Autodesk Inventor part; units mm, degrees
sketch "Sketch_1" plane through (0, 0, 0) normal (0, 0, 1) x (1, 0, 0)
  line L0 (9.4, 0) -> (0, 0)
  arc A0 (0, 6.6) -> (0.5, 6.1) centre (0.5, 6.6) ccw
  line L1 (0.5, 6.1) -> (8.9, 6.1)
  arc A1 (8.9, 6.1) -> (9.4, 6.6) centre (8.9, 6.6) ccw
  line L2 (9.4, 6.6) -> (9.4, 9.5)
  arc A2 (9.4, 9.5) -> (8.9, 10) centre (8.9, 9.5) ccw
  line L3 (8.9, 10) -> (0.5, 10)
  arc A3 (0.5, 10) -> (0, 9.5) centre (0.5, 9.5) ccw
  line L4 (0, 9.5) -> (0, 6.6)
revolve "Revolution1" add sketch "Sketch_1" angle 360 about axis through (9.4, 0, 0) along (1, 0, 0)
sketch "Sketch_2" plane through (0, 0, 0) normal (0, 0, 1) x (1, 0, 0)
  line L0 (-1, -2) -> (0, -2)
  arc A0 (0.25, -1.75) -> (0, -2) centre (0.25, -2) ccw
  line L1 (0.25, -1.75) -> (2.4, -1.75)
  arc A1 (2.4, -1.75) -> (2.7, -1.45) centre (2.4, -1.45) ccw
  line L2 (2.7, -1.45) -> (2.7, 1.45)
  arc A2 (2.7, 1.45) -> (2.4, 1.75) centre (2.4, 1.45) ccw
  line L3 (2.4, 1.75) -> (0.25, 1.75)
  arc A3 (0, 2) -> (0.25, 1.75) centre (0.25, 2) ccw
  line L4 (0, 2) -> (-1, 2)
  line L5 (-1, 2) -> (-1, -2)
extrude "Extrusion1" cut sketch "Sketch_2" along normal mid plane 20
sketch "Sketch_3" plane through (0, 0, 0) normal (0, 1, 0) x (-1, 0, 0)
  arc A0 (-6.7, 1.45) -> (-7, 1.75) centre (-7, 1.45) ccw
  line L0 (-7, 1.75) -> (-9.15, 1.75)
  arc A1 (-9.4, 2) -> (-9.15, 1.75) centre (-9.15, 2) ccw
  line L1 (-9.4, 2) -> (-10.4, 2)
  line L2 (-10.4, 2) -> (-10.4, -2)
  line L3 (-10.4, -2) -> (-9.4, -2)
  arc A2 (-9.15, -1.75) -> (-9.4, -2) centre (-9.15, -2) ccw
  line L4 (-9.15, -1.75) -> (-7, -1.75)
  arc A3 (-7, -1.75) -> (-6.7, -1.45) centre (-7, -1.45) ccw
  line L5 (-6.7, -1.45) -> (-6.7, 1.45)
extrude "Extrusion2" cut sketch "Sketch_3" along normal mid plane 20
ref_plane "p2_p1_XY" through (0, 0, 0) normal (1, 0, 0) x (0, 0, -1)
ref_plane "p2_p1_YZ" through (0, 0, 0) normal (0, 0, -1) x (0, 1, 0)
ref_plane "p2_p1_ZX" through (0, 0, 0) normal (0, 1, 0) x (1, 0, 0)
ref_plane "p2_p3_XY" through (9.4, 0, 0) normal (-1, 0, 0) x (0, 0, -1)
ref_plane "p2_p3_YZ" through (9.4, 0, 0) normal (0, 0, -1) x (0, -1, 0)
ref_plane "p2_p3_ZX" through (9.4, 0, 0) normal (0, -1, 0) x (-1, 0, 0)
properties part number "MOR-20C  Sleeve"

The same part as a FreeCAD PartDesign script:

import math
import FreeCAD as App
import Part
import Sketcher

doc = App.newDocument("Part")
body = doc.addObject("PartDesign::Body", "Body")

# Sketch on XY plane
sketch1 = body.newObject("Sketcher::SketchObject", "Sketch")
sketch1.AttachmentSupport = (doc.getObject("XY_Plane"), [""])
sketch1.MapMode = "FlatFace"
sketch1.addGeometry([
    Part.LineSegment(App.Vector(0, 9.5, 0), App.Vector(0, 6.6, 0)),  # 0
    Part.ArcOfCircle(Part.Circle(App.Vector(0.5, 6.6, 0), App.Vector(0, 0, 1), 0.5), math.radians(180), math.radians(270)),  # 1
    Part.LineSegment(App.Vector(0.5, 6.1, 0), App.Vector(8.9, 6.1, 0)),  # 2
    Part.ArcOfCircle(Part.Circle(App.Vector(8.9, 6.6, 0), App.Vector(0, 0, 1), 0.5), math.radians(-90), math.radians(0)),  # 3
    Part.LineSegment(App.Vector(9.4, 6.6, 0), App.Vector(9.4, 9.5, 0)),  # 4
    Part.ArcOfCircle(Part.Circle(App.Vector(8.9, 9.5, 0), App.Vector(0, 0, 1), 0.5), math.radians(0), math.radians(90)),  # 5
    Part.LineSegment(App.Vector(8.9, 10, 0), App.Vector(0.5, 10, 0)),  # 6
    Part.ArcOfCircle(Part.Circle(App.Vector(0.5, 9.5, 0), App.Vector(0, 0, 1), 0.5), math.radians(90), math.radians(180)),  # 7
], False)
sketch1.addConstraint([
    Sketcher.Constraint("Tangent", 0, 2, 1, 1),
    Sketcher.Constraint("Tangent", 1, 2, 2, 1),
    Sketcher.Constraint("Tangent", 2, 2, 3, 1),
    Sketcher.Constraint("Tangent", 3, 2, 4, 1),
    Sketcher.Constraint("Tangent", 4, 2, 5, 1),
    Sketcher.Constraint("Tangent", 5, 2, 6, 1),
    Sketcher.Constraint("Tangent", 6, 2, 7, 1),
    Sketcher.Constraint("Tangent", 7, 2, 0, 1),
    Sketcher.Constraint("Vertical", 0),
    Sketcher.Constraint("Horizontal", 2),
    Sketcher.Constraint("Vertical", 4),
    Sketcher.Constraint("Horizontal", 6),
    Sketcher.Constraint("Equal", 1, 3),
    Sketcher.Constraint("Equal", 3, 5),
    Sketcher.Constraint("Equal", 5, 7),
    Sketcher.Constraint("PointOnObject", 0, 2, -2),
    Sketcher.Constraint("Radius", 1, 0.5),
    Sketcher.Constraint("DistanceX", 2, 1, 2, 2, 8.4),
    Sketcher.Constraint("DistanceY", 0, 2, 0, 1, 2.9),
    Sketcher.Constraint("DistanceY", -1, 1, 5, 2, 10.0),
])
revolution = body.newObject("PartDesign::Revolution", "Revolution")
revolution.Profile = sketch1
revolution.ReferenceAxis = (sketch1, ["H_Axis"])
revolution.Angle = 360

# Sketch on XY plane
sketch2 = body.newObject("Sketcher::SketchObject", "Sketch001")
sketch2.AttachmentSupport = (doc.getObject("XY_Plane"), [""])
sketch2.MapMode = "FlatFace"
sketch2.addGeometry([
    Part.LineSegment(App.Vector(-1, 2, 0), App.Vector(-1, -2, 0)),  # 0
    Part.LineSegment(App.Vector(-1, -2, 0), App.Vector(0, -2, 0)),  # 1
    Part.ArcOfCircle(Part.Circle(App.Vector(0.25, -2, 0), App.Vector(0, 0, 1), 0.25), math.radians(90), math.radians(180)),  # 2
    Part.LineSegment(App.Vector(0.25, -1.75, 0), App.Vector(2.4, -1.75, 0)),  # 3
    Part.ArcOfCircle(Part.Circle(App.Vector(2.4, -1.45, 0), App.Vector(0, 0, 1), 0.3), math.radians(-90), math.radians(0)),  # 4
    Part.LineSegment(App.Vector(2.7, -1.45, 0), App.Vector(2.7, 1.45, 0)),  # 5
    Part.ArcOfCircle(Part.Circle(App.Vector(2.4, 1.45, 0), App.Vector(0, 0, 1), 0.3), math.radians(0), math.radians(90)),  # 6
    Part.LineSegment(App.Vector(2.4, 1.75, 0), App.Vector(0.25, 1.75, 0)),  # 7
    Part.ArcOfCircle(Part.Circle(App.Vector(0.25, 2, 0), App.Vector(0, 0, 1), 0.25), math.radians(180), math.radians(270)),  # 8
    Part.LineSegment(App.Vector(0, 2, 0), App.Vector(-1, 2, 0)),  # 9
], False)
sketch2.addConstraint([
    Sketcher.Constraint("Coincident", 0, 2, 1, 1),
    Sketcher.Constraint("Coincident", 1, 2, 2, 2),
    Sketcher.Constraint("Tangent", 2, 1, 3, 1),
    Sketcher.Constraint("Tangent", 3, 2, 4, 1),
    Sketcher.Constraint("Tangent", 4, 2, 5, 1),
    Sketcher.Constraint("Tangent", 5, 2, 6, 1),
    Sketcher.Constraint("Tangent", 6, 2, 7, 1),
    Sketcher.Constraint("Tangent", 7, 2, 8, 2),
    Sketcher.Constraint("Coincident", 8, 1, 9, 1),
    Sketcher.Constraint("Coincident", 9, 2, 0, 1),
    Sketcher.Constraint("Vertical", 0),
    Sketcher.Constraint("Horizontal", 1),
    Sketcher.Constraint("Horizontal", 3),
    Sketcher.Constraint("Vertical", 5),
    Sketcher.Constraint("Horizontal", 7),
    Sketcher.Constraint("Horizontal", 9),
    Sketcher.Constraint("Equal", 4, 6),
    Sketcher.Constraint("Equal", 2, 8),
    Sketcher.Constraint("Symmetric", 1, 2, 8, 1, -1, 1),
    Sketcher.Constraint("Symmetric", 2, 3, 8, 3, -1),
    Sketcher.Constraint("Horizontal", 2, 3, 0, 2),
    Sketcher.Constraint("Radius", 4, 0.3),
    Sketcher.Constraint("DistanceX", 1, 1, 1, 2, 1.0),
    Sketcher.Constraint("DistanceY", 0, 2, 0, 1, 4.0),
    Sketcher.Constraint("Radius", 2, 0.25),
    Sketcher.Constraint("DistanceX", 3, 1, 3, 2, 2.15),
])
pocket1 = body.newObject("PartDesign::Pocket", "Pocket")
pocket1.Profile = sketch2
pocket1.Length = 20
pocket1.Midplane = True

# Sketch on XZ plane
sketch3 = body.newObject("Sketcher::SketchObject", "Sketch002")
sketch3.AttachmentSupport = (doc.getObject("XZ_Plane"), [""])
sketch3.MapMode = "FlatFace"
sketch3.addGeometry([
    Part.LineSegment(App.Vector(6.7, -1.45, 0), App.Vector(6.7, 1.45, 0)),  # 0
    Part.ArcOfCircle(Part.Circle(App.Vector(7, 1.45, 0), App.Vector(0, 0, 1), 0.3), math.radians(90), math.radians(180)),  # 1
    Part.LineSegment(App.Vector(7, 1.75, 0), App.Vector(9.15, 1.75, 0)),  # 2
    Part.ArcOfCircle(Part.Circle(App.Vector(9.15, 2, 0), App.Vector(0, 0, 1), 0.25), math.radians(-90), math.radians(0)),  # 3
    Part.LineSegment(App.Vector(9.4, 2, 0), App.Vector(10.4, 2, 0)),  # 4
    Part.LineSegment(App.Vector(10.4, 2, 0), App.Vector(10.4, -2, 0)),  # 5
    Part.LineSegment(App.Vector(10.4, -2, 0), App.Vector(9.4, -2, 0)),  # 6
    Part.ArcOfCircle(Part.Circle(App.Vector(9.15, -2, 0), App.Vector(0, 0, 1), 0.25), math.radians(0), math.radians(90)),  # 7
    Part.LineSegment(App.Vector(9.15, -1.75, 0), App.Vector(7, -1.75, 0)),  # 8
    Part.ArcOfCircle(Part.Circle(App.Vector(7, -1.45, 0), App.Vector(0, 0, 1), 0.3), math.radians(180), math.radians(270)),  # 9
], False)
sketch3.addConstraint([
    Sketcher.Constraint("Tangent", 0, 2, 1, 2),
    Sketcher.Constraint("Tangent", 1, 1, 2, 1),
    Sketcher.Constraint("Tangent", 2, 2, 3, 1),
    Sketcher.Constraint("Coincident", 3, 2, 4, 1),
    Sketcher.Constraint("Coincident", 4, 2, 5, 1),
    Sketcher.Constraint("Coincident", 5, 2, 6, 1),
    Sketcher.Constraint("Coincident", 6, 2, 7, 1),
    Sketcher.Constraint("Tangent", 7, 2, 8, 1),
    Sketcher.Constraint("Tangent", 8, 2, 9, 2),
    Sketcher.Constraint("Tangent", 9, 1, 0, 1),
    Sketcher.Constraint("Vertical", 0),
    Sketcher.Constraint("Horizontal", 2),
    Sketcher.Constraint("Horizontal", 4),
    Sketcher.Constraint("Vertical", 5),
    Sketcher.Constraint("Horizontal", 6),
    Sketcher.Constraint("Horizontal", 8),
    Sketcher.Constraint("Equal", 3, 7),
    Sketcher.Constraint("Equal", 1, 9),
    Sketcher.Constraint("Symmetric", 3, 3, 7, 3, -1),
    Sketcher.Constraint("Horizontal", 7, 3, 5, 2),
    Sketcher.Constraint("Radius", 1, 0.3),
    Sketcher.Constraint("DistanceX", 4, 1, 4, 2, 1.0),
    Sketcher.Constraint("DistanceY", 5, 2, 5, 1, 4.0),
    Sketcher.Constraint("Radius", 3, 0.25),
    Sketcher.Constraint("DistanceY", 0, 1, 0, 2, 2.9),
    Sketcher.Constraint("DistanceX", -1, 1, 1, 3, 7.0),
    Sketcher.Constraint("DistanceX", 2, 1, 2, 2, 2.15),
])
pocket2 = body.newObject("PartDesign::Pocket", "Pocket001")
pocket2.Profile = sketch3
pocket2.Length = 20
pocket2.Midplane = True

doc.recompute()
